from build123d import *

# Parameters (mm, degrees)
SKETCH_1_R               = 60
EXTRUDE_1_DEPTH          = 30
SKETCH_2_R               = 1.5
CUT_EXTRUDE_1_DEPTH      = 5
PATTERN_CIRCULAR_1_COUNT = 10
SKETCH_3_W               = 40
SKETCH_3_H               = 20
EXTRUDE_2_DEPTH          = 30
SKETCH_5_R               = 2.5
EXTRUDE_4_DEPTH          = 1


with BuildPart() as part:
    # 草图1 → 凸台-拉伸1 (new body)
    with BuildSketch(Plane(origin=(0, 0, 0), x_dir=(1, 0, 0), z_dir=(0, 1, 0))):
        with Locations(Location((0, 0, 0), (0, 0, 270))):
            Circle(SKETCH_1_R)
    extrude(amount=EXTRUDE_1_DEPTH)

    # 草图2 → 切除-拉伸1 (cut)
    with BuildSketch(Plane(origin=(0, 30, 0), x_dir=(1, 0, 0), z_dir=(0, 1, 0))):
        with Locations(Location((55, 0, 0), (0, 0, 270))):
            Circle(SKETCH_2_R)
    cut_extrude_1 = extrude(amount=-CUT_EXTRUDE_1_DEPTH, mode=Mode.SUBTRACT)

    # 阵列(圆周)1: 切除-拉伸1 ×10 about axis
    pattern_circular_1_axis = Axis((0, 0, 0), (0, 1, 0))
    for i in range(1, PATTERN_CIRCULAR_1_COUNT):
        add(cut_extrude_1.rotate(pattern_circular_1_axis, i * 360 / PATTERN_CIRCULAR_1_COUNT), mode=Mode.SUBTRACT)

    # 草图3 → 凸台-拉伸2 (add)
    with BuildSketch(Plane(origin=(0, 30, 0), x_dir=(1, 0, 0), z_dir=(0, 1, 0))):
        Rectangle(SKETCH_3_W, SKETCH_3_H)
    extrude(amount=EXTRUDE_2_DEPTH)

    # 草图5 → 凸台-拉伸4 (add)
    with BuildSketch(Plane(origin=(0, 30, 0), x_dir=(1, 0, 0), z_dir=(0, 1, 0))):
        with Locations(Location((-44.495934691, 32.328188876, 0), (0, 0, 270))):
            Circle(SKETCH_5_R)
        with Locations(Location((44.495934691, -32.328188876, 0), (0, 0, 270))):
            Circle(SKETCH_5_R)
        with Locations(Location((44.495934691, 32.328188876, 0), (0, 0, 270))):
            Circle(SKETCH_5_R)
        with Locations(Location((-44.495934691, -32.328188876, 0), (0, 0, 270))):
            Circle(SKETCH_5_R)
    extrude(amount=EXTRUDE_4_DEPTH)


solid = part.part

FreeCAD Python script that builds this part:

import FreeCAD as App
import Part
import Sketcher
from FreeCAD import Vector

doc = App.newDocument("Part")
body = doc.addObject("PartDesign::Body", "Body")

sketch1 = body.newObject("Sketcher::SketchObject", "Sketch")
sketch1.AttachmentSupport = (doc.getObject("XZ_Plane"), [""])
sketch1.MapMode = "FlatFace"
sketch1.addGeometry(Part.Circle(Vector(0, 0, 0), Vector(0, 0, 1), 60), False)
sketch1.addConstraint([
    Sketcher.Constraint("Coincident", 0, 3, -1, 1),
    Sketcher.Constraint("Diameter", 0, 120.0),
])
pad1 = body.newObject("PartDesign::Pad", "Pad")
pad1.Profile = sketch1
pad1.Length = 30
pad1.Reversed = True

sketch2 = body.newObject("Sketcher::SketchObject", "Sketch001")
sketch2.AttachmentSupport = (doc.getObject("XZ_Plane"), [""])
sketch2.MapMode = "FlatFace"
sketch2.AttachmentOffset = App.Placement(Vector(0, 0, -30), App.Rotation())
sketch2.addGeometry(Part.Circle(Vector(55, 0, 0), Vector(0, 0, 1), 1.5), False)
sketch2.addConstraint([
    Sketcher.Constraint("PointOnObject", 0, 3, -1),
    Sketcher.Constraint("Diameter", 0, 3.0),
    Sketcher.Constraint("DistanceX", -1, 1, 0, 3, 55.0),
])
pocket1 = body.newObject("PartDesign::Pocket", "Pocket")
pocket1.Profile = sketch2
pocket1.Length = 5
pocket1.Reversed = True
doc.recompute()

polarpattern = body.newObject("PartDesign::PolarPattern", "PolarPattern")
polarpattern.Originals = [pocket1]
polarpattern.Axis = (doc.getObject("Y_Axis"), [""])
polarpattern.Angle = 360
polarpattern.Occurrences = 10
body.Tip = polarpattern

sketch3 = body.newObject("Sketcher::SketchObject", "Sketch002")
sketch3.AttachmentSupport = (doc.getObject("XZ_Plane"), [""])
sketch3.MapMode = "FlatFace"
sketch3.AttachmentOffset = App.Placement(Vector(0, 0, -30), App.Rotation())
sketch3.addGeometry([
    Part.LineSegment(Vector(-20, -10, 0), Vector(-20, 10, 0)),
    Part.LineSegment(Vector(-20, 10, 0), Vector(20, 10, 0)),
    Part.LineSegment(Vector(20, 10, 0), Vector(20, -10, 0)),
    Part.LineSegment(Vector(20, -10, 0), Vector(-20, -10, 0)),
], False)
sketch3.addConstraint([
    Sketcher.Constraint("Coincident", 0, 2, 1, 1),
    Sketcher.Constraint("Coincident", 1, 2, 2, 1),
    Sketcher.Constraint("Coincident", 2, 2, 3, 1),
    Sketcher.Constraint("Coincident", 3, 2, 0, 1),
    Sketcher.Constraint("Vertical", 0),
    Sketcher.Constraint("Horizontal", 1),
    Sketcher.Constraint("Vertical", 2),
    Sketcher.Constraint("Horizontal", 3),
    Sketcher.Constraint("Symmetric", 0, 2, 2, 2, -1, 1),
    Sketcher.Constraint("DistanceX", 1, 1, 1, 2, 40.0),
    Sketcher.Constraint("DistanceY", 0, 1, 0, 2, 20.0),
])
pad2 = body.newObject("PartDesign::Pad", "Pad001")
pad2.Profile = sketch3
pad2.Length = 30
pad2.Reversed = True

sketch4 = body.newObject("Sketcher::SketchObject", "Sketch003")
sketch4.AttachmentSupport = (doc.getObject("XZ_Plane"), [""])
sketch4.MapMode = "FlatFace"
sketch4.AttachmentOffset = App.Placement(Vector(0, 0, -30), App.Rotation())
sketch4.addGeometry([
    Part.Circle(Vector(-44.5, -32.3, 0), Vector(0, 0, 1), 2.5),
    Part.Circle(Vector(44.5, 32.3, 0), Vector(0, 0, 1), 2.5),
    Part.Circle(Vector(44.5, -32.3, 0), Vector(0, 0, 1), 2.5),
    Part.Circle(Vector(-44.5, 32.3, 0), Vector(0, 0, 1), 2.5),
], False)
sketch4.addConstraint([
    Sketcher.Constraint("Equal", 0, 1),
    Sketcher.Constraint("Equal", 1, 2),
    Sketcher.Constraint("Equal", 2, 3),
    Sketcher.Constraint("Symmetric", 0, 3, 1, 3, -1, 1),
    Sketcher.Constraint("Symmetric", 2, 3, 3, 3, -1, 1),
    Sketcher.Constraint("Symmetric", 0, 3, 2, 3, -2),
    Sketcher.Constraint("Diameter", 0, 5.0),
    Sketcher.Constraint("DistanceY", 0, 3, -1, 1, 32.328189),
    Sketcher.Constraint("DistanceX", 0, 3, 1, 3, 88.991869),
])
pad3 = body.newObject("PartDesign::Pad", "Pad002")
pad3.Profile = sketch4
pad3.Length = 1
pad3.Reversed = True

doc.recompute()
